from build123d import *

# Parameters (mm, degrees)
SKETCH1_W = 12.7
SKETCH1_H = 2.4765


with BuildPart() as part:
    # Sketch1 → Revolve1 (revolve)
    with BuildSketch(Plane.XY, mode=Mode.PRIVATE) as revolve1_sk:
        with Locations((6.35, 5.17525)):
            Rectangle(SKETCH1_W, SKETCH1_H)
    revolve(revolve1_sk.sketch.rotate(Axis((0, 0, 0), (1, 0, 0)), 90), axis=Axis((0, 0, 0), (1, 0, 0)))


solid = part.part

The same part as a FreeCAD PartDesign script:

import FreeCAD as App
import Part
import Sketcher
Q = App.Units.Quantity

doc = App.newDocument("Part")
body = doc.addObject("PartDesign::Body", "Body")

sketch1 = body.newObject("Sketcher::SketchObject", "Sketch")
sketch1.AttachmentSupport = (doc.getObject("XY_Plane"), [""])
sketch1.MapMode = "FlatFace"
sketch1.addGeometry([
    Part.LineSegment(App.Vector(0, 6.4, 0), App.Vector(0, 3.9, 0)),
    Part.LineSegment(App.Vector(0, 3.9, 0), App.Vector(12.7, 3.9, 0)),
    Part.LineSegment(App.Vector(12.7, 3.9, 0), App.Vector(12.7, 6.4, 0)),
    Part.LineSegment(App.Vector(12.7, 6.4, 0), App.Vector(0, 6.4, 0)),
], False)
sketch1.addConstraint([
    Sketcher.Constraint("Coincident", 0, 2, 1, 1),
    Sketcher.Constraint("Coincident", 1, 2, 2, 1),
    Sketcher.Constraint("Coincident", 2, 2, 3, 1),
    Sketcher.Constraint("Coincident", 3, 2, 0, 1),
    Sketcher.Constraint("Vertical", 0),
    Sketcher.Constraint("Horizontal", 1),
    Sketcher.Constraint("Vertical", 2),
    Sketcher.Constraint("Horizontal", 3),
    Sketcher.Constraint("PointOnObject", 0, 2, -2),
    Sketcher.Constraint("DistanceX", 1, 1, 1, 2, Q("0.5 in")),
    Sketcher.Constraint("DistanceY", 0, 2, 0, 1, Q("0.0975 in")),
    Sketcher.Constraint("DistanceY", -1, 1, 0, 2, Q("0.155 in")),
])
revolution = body.newObject("PartDesign::Revolution", "Revolution")
revolution.Profile = sketch1
revolution.ReferenceAxis = (sketch1, ["H_Axis"])
revolution.Angle = 360

doc.recompute()
